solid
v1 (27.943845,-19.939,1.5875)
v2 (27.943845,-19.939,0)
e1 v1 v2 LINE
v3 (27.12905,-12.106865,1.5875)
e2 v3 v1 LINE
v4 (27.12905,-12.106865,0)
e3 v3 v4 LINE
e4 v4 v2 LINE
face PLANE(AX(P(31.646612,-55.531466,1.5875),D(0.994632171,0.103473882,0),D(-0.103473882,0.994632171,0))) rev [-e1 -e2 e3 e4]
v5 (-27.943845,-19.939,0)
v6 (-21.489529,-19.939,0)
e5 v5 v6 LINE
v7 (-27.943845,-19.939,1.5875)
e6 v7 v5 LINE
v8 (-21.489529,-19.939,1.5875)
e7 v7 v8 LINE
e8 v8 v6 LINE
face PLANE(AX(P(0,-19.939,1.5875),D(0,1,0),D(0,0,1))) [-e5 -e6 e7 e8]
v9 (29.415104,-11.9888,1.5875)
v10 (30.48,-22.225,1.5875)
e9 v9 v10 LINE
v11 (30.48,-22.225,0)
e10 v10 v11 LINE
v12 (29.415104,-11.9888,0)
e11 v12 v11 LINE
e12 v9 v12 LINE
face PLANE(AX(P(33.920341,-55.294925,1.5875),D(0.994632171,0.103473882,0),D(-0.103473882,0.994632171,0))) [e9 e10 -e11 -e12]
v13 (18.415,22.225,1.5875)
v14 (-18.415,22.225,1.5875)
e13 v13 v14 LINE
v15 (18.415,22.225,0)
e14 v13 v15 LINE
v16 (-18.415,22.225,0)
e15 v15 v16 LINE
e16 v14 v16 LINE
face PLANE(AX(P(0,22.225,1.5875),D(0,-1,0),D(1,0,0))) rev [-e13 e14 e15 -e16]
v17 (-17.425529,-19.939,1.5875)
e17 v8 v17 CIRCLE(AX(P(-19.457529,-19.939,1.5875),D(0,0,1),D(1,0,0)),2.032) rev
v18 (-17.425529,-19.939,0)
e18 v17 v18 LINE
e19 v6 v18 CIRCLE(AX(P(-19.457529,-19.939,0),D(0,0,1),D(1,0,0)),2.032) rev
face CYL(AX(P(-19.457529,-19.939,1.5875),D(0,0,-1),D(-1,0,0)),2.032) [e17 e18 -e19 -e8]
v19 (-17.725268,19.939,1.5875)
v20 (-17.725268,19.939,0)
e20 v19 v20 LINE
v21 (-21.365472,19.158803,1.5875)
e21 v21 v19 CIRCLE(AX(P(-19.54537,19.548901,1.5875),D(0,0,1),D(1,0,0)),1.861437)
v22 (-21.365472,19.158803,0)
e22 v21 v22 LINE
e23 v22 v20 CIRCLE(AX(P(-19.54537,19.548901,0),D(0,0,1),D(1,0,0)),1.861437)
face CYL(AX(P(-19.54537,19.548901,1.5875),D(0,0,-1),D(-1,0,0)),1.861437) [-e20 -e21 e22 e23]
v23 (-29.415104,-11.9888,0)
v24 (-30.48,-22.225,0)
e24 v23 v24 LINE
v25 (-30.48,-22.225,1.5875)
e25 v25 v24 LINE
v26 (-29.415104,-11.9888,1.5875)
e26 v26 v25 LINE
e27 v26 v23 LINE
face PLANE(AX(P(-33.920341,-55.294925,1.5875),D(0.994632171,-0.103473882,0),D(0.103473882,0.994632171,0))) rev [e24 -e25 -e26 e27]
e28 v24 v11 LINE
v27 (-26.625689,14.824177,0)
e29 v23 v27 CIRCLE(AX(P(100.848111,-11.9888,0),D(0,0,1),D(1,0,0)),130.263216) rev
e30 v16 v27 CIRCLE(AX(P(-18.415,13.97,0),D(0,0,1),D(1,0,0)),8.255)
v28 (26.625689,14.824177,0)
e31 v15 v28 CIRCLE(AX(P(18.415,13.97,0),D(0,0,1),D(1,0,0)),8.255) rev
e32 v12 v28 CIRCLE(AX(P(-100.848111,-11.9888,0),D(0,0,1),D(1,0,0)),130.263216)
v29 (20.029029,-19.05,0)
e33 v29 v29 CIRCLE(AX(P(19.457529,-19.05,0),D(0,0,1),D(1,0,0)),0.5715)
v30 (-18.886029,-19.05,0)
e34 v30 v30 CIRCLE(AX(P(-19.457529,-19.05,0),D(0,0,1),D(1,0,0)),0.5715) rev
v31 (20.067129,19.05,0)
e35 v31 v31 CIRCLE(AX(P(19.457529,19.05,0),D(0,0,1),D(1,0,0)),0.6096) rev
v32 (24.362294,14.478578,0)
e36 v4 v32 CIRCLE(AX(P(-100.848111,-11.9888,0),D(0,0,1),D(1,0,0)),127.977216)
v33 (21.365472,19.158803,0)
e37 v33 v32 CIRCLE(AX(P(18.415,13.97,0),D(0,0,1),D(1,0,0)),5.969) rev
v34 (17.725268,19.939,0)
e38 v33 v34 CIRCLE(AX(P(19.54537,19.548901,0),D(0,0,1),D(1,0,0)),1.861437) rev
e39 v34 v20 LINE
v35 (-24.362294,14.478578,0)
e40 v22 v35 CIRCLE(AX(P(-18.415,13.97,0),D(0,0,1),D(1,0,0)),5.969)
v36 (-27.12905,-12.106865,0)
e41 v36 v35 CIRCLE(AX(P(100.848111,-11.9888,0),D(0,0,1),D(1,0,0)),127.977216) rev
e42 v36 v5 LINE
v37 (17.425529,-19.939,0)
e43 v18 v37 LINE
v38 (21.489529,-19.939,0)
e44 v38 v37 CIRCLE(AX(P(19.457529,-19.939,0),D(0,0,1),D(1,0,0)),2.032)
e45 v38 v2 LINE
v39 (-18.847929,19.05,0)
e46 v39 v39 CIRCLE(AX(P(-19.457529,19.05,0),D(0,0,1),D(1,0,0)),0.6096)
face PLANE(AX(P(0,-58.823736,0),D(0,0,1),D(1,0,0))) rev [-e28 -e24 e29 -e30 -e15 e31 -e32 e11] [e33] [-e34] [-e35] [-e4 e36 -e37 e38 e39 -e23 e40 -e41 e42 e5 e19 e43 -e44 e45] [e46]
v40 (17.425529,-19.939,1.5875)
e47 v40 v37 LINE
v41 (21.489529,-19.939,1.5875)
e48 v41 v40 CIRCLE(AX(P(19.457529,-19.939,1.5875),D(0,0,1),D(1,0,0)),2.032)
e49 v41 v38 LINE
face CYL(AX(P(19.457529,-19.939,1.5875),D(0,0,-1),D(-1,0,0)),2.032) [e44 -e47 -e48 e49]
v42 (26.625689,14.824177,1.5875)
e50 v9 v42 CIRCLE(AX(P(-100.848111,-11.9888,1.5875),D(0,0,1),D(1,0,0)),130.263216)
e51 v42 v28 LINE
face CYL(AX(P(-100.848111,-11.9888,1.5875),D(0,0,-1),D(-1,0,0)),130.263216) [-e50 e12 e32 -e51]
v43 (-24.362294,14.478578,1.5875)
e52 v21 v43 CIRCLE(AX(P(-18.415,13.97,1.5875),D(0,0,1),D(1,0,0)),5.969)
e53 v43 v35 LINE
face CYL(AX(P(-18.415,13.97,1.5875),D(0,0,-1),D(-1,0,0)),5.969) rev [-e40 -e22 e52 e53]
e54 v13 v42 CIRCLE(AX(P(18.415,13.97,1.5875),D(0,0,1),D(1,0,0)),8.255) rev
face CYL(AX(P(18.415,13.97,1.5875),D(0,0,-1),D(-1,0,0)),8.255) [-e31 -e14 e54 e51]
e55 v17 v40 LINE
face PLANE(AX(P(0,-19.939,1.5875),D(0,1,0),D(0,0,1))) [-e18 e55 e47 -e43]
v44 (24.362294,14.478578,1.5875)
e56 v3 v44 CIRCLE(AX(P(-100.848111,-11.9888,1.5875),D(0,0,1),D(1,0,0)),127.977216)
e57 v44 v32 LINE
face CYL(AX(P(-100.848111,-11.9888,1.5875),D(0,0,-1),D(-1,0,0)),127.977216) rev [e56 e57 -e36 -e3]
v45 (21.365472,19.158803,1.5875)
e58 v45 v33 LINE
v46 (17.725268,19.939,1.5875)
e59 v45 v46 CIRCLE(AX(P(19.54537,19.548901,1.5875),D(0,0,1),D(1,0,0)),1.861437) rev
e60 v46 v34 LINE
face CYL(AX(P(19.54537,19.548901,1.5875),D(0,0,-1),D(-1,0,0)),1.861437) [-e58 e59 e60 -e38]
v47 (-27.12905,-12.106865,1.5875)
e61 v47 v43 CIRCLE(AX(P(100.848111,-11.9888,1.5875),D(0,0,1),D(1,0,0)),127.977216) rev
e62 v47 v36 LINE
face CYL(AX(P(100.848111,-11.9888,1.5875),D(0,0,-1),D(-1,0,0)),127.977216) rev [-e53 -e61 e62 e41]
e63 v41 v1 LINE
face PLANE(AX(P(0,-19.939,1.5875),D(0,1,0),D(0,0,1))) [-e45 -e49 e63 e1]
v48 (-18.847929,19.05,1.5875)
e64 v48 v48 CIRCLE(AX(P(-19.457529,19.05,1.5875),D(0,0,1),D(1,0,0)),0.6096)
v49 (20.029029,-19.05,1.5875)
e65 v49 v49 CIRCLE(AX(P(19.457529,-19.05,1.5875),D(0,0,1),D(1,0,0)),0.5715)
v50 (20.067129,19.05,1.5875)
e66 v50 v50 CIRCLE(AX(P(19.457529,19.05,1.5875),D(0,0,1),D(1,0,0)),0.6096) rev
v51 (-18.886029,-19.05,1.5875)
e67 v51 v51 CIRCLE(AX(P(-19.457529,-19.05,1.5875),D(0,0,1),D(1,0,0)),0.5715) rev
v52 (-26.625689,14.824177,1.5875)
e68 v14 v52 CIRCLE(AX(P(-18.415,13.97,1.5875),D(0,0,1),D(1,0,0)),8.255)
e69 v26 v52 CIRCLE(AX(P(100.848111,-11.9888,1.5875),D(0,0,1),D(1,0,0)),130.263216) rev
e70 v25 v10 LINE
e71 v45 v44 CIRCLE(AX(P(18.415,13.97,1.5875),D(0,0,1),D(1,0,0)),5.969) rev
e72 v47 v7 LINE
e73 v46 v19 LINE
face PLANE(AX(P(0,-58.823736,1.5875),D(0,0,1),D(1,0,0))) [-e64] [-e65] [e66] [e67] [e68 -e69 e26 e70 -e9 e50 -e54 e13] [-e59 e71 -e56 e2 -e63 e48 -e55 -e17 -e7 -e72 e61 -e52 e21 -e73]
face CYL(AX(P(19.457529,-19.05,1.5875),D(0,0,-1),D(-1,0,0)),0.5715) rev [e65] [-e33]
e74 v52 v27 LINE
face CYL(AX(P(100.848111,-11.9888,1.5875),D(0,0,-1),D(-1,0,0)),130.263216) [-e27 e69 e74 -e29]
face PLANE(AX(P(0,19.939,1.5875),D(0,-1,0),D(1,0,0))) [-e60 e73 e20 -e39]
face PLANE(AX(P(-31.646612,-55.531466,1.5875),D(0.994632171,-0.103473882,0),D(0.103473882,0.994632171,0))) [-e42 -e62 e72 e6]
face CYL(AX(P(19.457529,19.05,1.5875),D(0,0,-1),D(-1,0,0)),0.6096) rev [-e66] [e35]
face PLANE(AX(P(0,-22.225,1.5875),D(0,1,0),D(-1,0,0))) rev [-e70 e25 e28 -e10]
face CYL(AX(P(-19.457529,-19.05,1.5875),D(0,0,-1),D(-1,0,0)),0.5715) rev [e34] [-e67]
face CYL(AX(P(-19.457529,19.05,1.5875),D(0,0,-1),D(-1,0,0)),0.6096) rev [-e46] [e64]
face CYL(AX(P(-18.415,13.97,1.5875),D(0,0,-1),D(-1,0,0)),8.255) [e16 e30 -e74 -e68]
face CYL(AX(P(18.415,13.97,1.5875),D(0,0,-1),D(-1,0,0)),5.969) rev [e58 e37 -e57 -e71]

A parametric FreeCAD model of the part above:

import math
import FreeCAD as App
import Part
import Sketcher
from FreeCAD import Vector
Q = App.Units.Quantity

doc = App.newDocument("Part")
body = doc.addObject("PartDesign::Body", "Body")

# Sketch on XY plane
sketch1 = doc.addObject("Sketcher::SketchObject", "Sketch")
body.addObject(sketch1)
sketch1.AttachmentSupport = (doc.XY_Plane, [""])
sketch1.MapMode = "FlatFace"
sketch1.addGeometry([
    Part.LineSegment(Vector(30.48, -22.225, 0), Vector(29.415104, -11.9888, 0)),  # 0
    Part.ArcOfCircle(Part.Circle(Vector(-100.848111, -11.9888, 0), Vector(0, 0, 1), 130.263216), math.radians(0), math.radians(11.878495)),  # 1
    Part.ArcOfCircle(Part.Circle(Vector(18.415, 13.97, 0), Vector(0, 0, 1), 8.255), math.radians(5.939247), math.radians(90)),  # 2
    Part.LineSegment(Vector(18.415, 22.225, 0), Vector(-18.415, 22.225, 0)),  # 3
    Part.ArcOfCircle(Part.Circle(Vector(-18.415, 13.97, 0), Vector(0, 0, 1), 8.255), math.radians(90), math.radians(174.060753)),  # 4
    Part.ArcOfCircle(Part.Circle(Vector(100.848111, -11.9888, 0), Vector(0, 0, 1), 130.263216), math.radians(168.121505), math.radians(180)),  # 5
    Part.LineSegment(Vector(-29.415104, -11.9888, 0), Vector(-30.48, -22.225, 0)),  # 6
    Part.LineSegment(Vector(-30.48, -22.225, 0), Vector(30.48, -22.225, 0)),  # 7
    Part.Circle(Vector(-19.457529, -19.05, 0), Vector(0, 0, 1), 0.5715),  # 8
    Part.Circle(Vector(19.457529, -19.05, 0), Vector(0, 0, 1), 0.5715),  # 9
    Part.Circle(Vector(-19.457529, 19.05, 0), Vector(0, 0, 1), 0.6096),  # 10
    Part.LineSegment(Vector(-17.725268, 19.939, 0), Vector(17.725268, 19.939, 0)),  # 11
    Part.ArcOfCircle(Part.Circle(Vector(19.54537, 19.548901, 0), Vector(0, 0, 1), 1.861437), math.radians(167.902934), math.radians(347.902934)),  # 12
    Part.ArcOfCircle(Part.Circle(Vector(18.415, 13.97, 0), Vector(0, 0, 1), 5.969), math.radians(4.887708), math.radians(60.37645)),  # 13
    Part.ArcOfCircle(Part.Circle(Vector(-100.848111, -11.9888, 0), Vector(0, 0, 1), 127.977216), math.radians(-0.052858), math.radians(11.935663)),  # 14
    Part.LineSegment(Vector(27.12905, -12.106865, 0), Vector(27.943845, -19.939, 0)),  # 15
    Part.LineSegment(Vector(27.943845, -19.939, 0), Vector(21.489529, -19.939, 0)),  # 16
    Part.ArcOfCircle(Part.Circle(Vector(19.457529, -19.939, 0), Vector(0, 0, 1), 2.032), math.radians(0), math.radians(180)),  # 17
    Part.LineSegment(Vector(17.425529, -19.939, 0), Vector(-17.425529, -19.939, 0)),  # 18
    Part.ArcOfCircle(Part.Circle(Vector(-19.457529, -19.939, 0), Vector(0, 0, 1), 2.032), math.radians(0), math.radians(180)),  # 19
    Part.LineSegment(Vector(-21.489529, -19.939, 0), Vector(-27.943845, -19.939, 0)),  # 20
    Part.LineSegment(Vector(-27.943845, -19.939, 0), Vector(-27.12905, -12.106865, 0)),  # 21
    Part.ArcOfCircle(Part.Circle(Vector(100.848111, -11.9888, 0), Vector(0, 0, 1), 127.977216), math.radians(168.064337), math.radians(180.052858)),  # 22
    Part.ArcOfCircle(Part.Circle(Vector(-18.415, 13.97, 0), Vector(0, 0, 1), 5.969), math.radians(119.62355), math.radians(175.112292)),  # 23
    Part.ArcOfCircle(Part.Circle(Vector(-19.54537, 19.548901, 0), Vector(0, 0, 1), 1.861437), math.radians(-167.902934), math.radians(12.097066)),  # 24
    Part.Circle(Vector(19.457529, 19.05, 0), Vector(0, 0, 1), 0.6096),  # 25
], False)
sketch1.addConstraint([
    Sketcher.Constraint("Coincident", 0, 2, 1, 1),
    Sketcher.Constraint("Coincident", 1, 2, 2, 1),
    Sketcher.Constraint("Tangent", 2, 2, 3, 1),
    Sketcher.Constraint("Tangent", 3, 2, 4, 1),
    Sketcher.Constraint("Coincident", 4, 2, 5, 1),
    Sketcher.Constraint("Coincident", 5, 2, 6, 1),
    Sketcher.Constraint("Coincident", 6, 2, 7, 1),
    Sketcher.Constraint("Coincident", 7, 2, 0, 1),
    Sketcher.Constraint("Coincident", 11, 2, 12, 1),
    Sketcher.Constraint("Coincident", 12, 2, 13, 2),
    Sketcher.Constraint("Coincident", 13, 1, 14, 2),
    Sketcher.Constraint("Coincident", 14, 1, 15, 1),
    Sketcher.Constraint("Coincident", 15, 2, 16, 1),
    Sketcher.Constraint("Coincident", 16, 2, 17, 1),
    Sketcher.Constraint("Coincident", 17, 2, 18, 1),
    Sketcher.Constraint("Coincident", 18, 2, 19, 1),
    Sketcher.Constraint("Coincident", 19, 2, 20, 1),
    Sketcher.Constraint("Coincident", 20, 2, 21, 1),
    Sketcher.Constraint("Coincident", 21, 2, 22, 2),
    Sketcher.Constraint("Coincident", 22, 1, 23, 2),
    Sketcher.Constraint("Coincident", 23, 1, 24, 1),
    Sketcher.Constraint("Coincident", 24, 2, 11, 1),
    Sketcher.Constraint("Horizontal", 3),
    Sketcher.Constraint("Horizontal", 7),
    Sketcher.Constraint("Horizontal", 11),
    Sketcher.Constraint("Horizontal", 16),
    Sketcher.Constraint("Horizontal", 18),
    Sketcher.Constraint("Horizontal", 20),
    Sketcher.Constraint("Coincident", 13, 3, 2, 3),
    Sketcher.Constraint("Coincident", 14, 3, 1, 3),
    Sketcher.Constraint("Coincident", 22, 3, 5, 3),
    Sketcher.Constraint("Coincident", 23, 3, 4, 3),
    Sketcher.Constraint("Equal", 2, 4),
    Sketcher.Constraint("Equal", 1, 5),
    Sketcher.Constraint("Equal", 8, 9),
    Sketcher.Constraint("Equal", 17, 19),
    Sketcher.Constraint("Equal", 14, 22),
    Sketcher.Constraint("Equal", 13, 23),
    Sketcher.Constraint("Equal", 12, 24),
    Sketcher.Constraint("Equal", 10, 25),
    Sketcher.Constraint("Symmetric", 9, 3, 10, 3, -1, 1),
    Sketcher.Constraint("Symmetric", 8, 3, 25, 3, -1, 1),
    Sketcher.Constraint("Symmetric", 1, 3, 5, 3, -2),
    Sketcher.Constraint("Symmetric", 8, 3, 9, 3, -2),
    Sketcher.Constraint("Symmetric", 17, 3, 19, 3, -2),
    Sketcher.Constraint("Symmetric", 12, 3, 24, 3, -2),
    Sketcher.Constraint("Symmetric", 15, 2, 20, 2, -2),
    Sketcher.Constraint("Parallel", 0, 15),
    Sketcher.Constraint("Parallel", 6, 21),
    Sketcher.Constraint("Horizontal", 22, 3, 0, 2),
    Sketcher.Constraint("Horizontal", 1, 2, 4, 2),
    Sketcher.Constraint("Horizontal", 0, 2, 5, 2),
    Sketcher.Constraint("Horizontal", 19, 3, 15, 2),
    Sketcher.Constraint("Horizontal", 16, 2, 17, 2),
    Sketcher.Constraint("Horizontal", 14, 1, 21, 2),
    Sketcher.Constraint("Vertical", 9, 3, 17, 3),
    Sketcher.Constraint("Radius", 17, Q("0.08 in")),
    Sketcher.Constraint("Diameter", 8, Q("0.045 in")),
    Sketcher.Constraint("Diameter", 10, Q("0.048 in")),
    Sketcher.Constraint("DistanceX", 7, 1, 7, 2, Q("2.4 in")),
    Sketcher.Constraint("Radius", 2, Q("0.325 in")),
    Sketcher.Constraint("Radius", 13, Q("0.235 in")),
    Sketcher.Constraint("DistanceX", 3, 2, 3, 1, Q("1.45 in")),
    Sketcher.Constraint("DistanceY", 8, 3, 4, 3, Q("1.3 in")),
    Sketcher.Constraint("DistanceY", 4, 3, 10, 3, Q("0.2 in")),
    Sketcher.Constraint("DistanceY", 6, 2, 19, 3, Q("0.09 in")),
    Sketcher.Constraint("DistanceY", 11, 2, 2, 2, Q("0.09 in")),
    Sketcher.Constraint("DistanceY", 1, 3, -1, 1, Q("0.472 in")),
    Sketcher.Constraint("DistanceY", 17, 3, -1, 1, Q("0.785 in")),
    Sketcher.Constraint("Radius", 1, 130.263216),
    Sketcher.Constraint("Radius", 12, 1.861437),
    Sketcher.Constraint("Radius", 14, 127.977216),
    Sketcher.Constraint("DistanceY", -1, 1, 12, 3, 19.548901),
    Sketcher.Constraint("DistanceX", 10, 3, 12, 3, 39.002899),
    Sketcher.Constraint("DistanceX", 12, 3, 12, 2, 1.820102),
    Sketcher.Constraint("DistanceY", 13, 1, 1, 2, 0.345599),
    Sketcher.Constraint("DistanceX", 16, 2, 16, 1, 6.454316),
])
pad1 = doc.addObject("PartDesign::Pad", "Pad")
body.addObject(pad1)
pad1.Profile = sketch1
pad1.Length = Q("0.0625 in")

doc.recompute()
